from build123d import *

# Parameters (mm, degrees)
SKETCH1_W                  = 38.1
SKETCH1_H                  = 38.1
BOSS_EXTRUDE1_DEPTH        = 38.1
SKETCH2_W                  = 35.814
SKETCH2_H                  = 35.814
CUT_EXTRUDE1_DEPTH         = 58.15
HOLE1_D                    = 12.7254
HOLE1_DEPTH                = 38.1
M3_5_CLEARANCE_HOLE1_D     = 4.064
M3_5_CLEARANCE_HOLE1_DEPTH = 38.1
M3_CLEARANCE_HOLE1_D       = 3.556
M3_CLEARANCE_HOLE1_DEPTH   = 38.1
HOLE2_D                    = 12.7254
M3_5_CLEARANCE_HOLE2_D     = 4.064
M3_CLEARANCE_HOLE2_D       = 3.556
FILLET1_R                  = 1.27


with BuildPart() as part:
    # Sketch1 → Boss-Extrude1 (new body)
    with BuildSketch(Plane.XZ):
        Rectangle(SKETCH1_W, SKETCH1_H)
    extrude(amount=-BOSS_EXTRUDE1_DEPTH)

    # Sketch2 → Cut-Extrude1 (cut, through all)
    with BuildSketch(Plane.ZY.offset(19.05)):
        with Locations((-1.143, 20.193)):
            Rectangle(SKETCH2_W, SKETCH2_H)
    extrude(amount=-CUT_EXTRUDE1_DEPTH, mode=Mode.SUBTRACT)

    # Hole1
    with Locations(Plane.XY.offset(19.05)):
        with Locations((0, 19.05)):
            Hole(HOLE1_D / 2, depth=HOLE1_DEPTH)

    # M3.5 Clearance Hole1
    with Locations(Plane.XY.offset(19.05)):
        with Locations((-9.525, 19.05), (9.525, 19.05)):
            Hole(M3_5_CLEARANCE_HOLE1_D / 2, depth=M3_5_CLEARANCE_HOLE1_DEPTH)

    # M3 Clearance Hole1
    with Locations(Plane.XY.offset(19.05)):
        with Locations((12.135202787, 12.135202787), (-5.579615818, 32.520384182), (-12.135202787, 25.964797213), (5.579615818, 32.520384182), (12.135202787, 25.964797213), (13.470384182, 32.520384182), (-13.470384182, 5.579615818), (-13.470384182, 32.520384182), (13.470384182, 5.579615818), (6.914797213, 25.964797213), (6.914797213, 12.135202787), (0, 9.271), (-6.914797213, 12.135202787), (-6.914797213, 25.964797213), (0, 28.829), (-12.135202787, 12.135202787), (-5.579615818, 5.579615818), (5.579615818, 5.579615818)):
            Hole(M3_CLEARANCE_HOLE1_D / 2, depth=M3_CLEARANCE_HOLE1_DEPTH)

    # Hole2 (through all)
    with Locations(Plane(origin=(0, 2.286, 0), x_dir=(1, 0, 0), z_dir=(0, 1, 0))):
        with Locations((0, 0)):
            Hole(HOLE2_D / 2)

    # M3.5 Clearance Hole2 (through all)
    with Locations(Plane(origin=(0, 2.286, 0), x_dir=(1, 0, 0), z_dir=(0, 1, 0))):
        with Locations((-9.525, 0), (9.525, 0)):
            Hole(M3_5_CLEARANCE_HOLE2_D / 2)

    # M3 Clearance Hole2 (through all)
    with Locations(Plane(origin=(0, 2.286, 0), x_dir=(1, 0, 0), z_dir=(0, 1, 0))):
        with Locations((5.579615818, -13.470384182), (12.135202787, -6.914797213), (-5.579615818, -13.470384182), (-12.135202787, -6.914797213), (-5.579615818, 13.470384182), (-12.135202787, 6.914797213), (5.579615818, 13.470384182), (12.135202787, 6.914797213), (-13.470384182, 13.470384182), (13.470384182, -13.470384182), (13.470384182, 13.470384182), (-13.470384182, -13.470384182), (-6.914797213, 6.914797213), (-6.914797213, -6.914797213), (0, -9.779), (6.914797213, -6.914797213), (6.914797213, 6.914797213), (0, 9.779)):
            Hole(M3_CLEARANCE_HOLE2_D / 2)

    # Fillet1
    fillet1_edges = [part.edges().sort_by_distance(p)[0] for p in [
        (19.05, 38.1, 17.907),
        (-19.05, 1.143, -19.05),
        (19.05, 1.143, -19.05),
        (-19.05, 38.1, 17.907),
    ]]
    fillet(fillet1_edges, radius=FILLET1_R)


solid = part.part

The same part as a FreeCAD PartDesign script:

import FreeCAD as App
import Part
import Sketcher
Q = App.Units.Quantity


def edges_at(feature, points):
    """Names of the edges that pass closest to the given points."""
    edges = feature.Shape.Edges
    near = lambda p: min(range(len(edges)), key=lambda i: edges[i].distToShape(Part.Vertex(*p))[0])
    return sorted({f"Edge{near(p) + 1}" for p in points})

doc = App.newDocument("Part")
body = doc.addObject("PartDesign::Body", "Body")

sketch1 = body.newObject("Sketcher::SketchObject", "Sketch")
sketch1.AttachmentSupport = (doc.getObject("XZ_Plane"), [""])
sketch1.MapMode = "FlatFace"
sketch1.addGeometry(Part.LineSegment(App.Vector(-19.05, 19.05, 0), App.Vector(-19.05, -19.05, 0)), False)
sketch1.addGeometry(Part.LineSegment(App.Vector(-19.05, -19.05, 0), App.Vector(19.05, -19.05, 0)), False)
sketch1.addGeometry(Part.LineSegment(App.Vector(19.05, -19.05, 0), App.Vector(19.05, 19.05, 0)), False)
sketch1.addGeometry(Part.LineSegment(App.Vector(19.05, 19.05, 0), App.Vector(-19.05, 19.05, 0)), False)
sketch1.addConstraint(Sketcher.Constraint("Coincident", 0, 2, 1, 1))
sketch1.addConstraint(Sketcher.Constraint("Coincident", 1, 2, 2, 1))
sketch1.addConstraint(Sketcher.Constraint("Coincident", 2, 2, 3, 1))
sketch1.addConstraint(Sketcher.Constraint("Coincident", 3, 2, 0, 1))
sketch1.addConstraint(Sketcher.Constraint("Vertical", 0))
sketch1.addConstraint(Sketcher.Constraint("Horizontal", 1))
sketch1.addConstraint(Sketcher.Constraint("Vertical", 2))
sketch1.addConstraint(Sketcher.Constraint("Horizontal", 3))
sketch1.addConstraint(Sketcher.Constraint("Symmetric", 0, 2, 2, 2, -1, 1))
sketch1.addConstraint(Sketcher.Constraint("Equal", 3, 0))
sketch1.addConstraint(Sketcher.Constraint("DistanceX", 1, 1, 1, 2, Q("1.5 in")))
pad1 = body.newObject("PartDesign::Pad", "Pad")
pad1.Profile = sketch1
pad1.Length = Q("1.5 in")
pad1.Reversed = True

sketch2 = body.newObject("Sketcher::SketchObject", "Sketch001")
sketch2.AttachmentSupport = (doc.getObject("YZ_Plane"), [""])
sketch2.MapMode = "FlatFace"
sketch2.AttachmentOffset = App.Placement(App.Vector(0, 0, -0.75 * 25.4), App.Rotation())
sketch2.addGeometry(Part.LineSegment(App.Vector(38.1, -19.05, 0), App.Vector(2.286, -19.05, 0)), False)
sketch2.addGeometry(Part.LineSegment(App.Vector(2.286, -19.05, 0), App.Vector(2.286, 16.764, 0)), False)
sketch2.addGeometry(Part.LineSegment(App.Vector(2.286, 16.764, 0), App.Vector(38.1, 16.764, 0)), False)
sketch2.addGeometry(Part.LineSegment(App.Vector(38.1, 16.764, 0), App.Vector(38.1, -19.05, 0)), False)
sketch2.addConstraint(Sketcher.Constraint("Coincident", 0, 2, 1, 1))
sketch2.addConstraint(Sketcher.Constraint("Coincident", 1, 2, 2, 1))
sketch2.addConstraint(Sketcher.Constraint("Coincident", 2, 2, 3, 1))
sketch2.addConstraint(Sketcher.Constraint("Coincident", 3, 2, 0, 1))
sketch2.addConstraint(Sketcher.Constraint("Horizontal", 0))
sketch2.addConstraint(Sketcher.Constraint("Vertical", 1))
sketch2.addConstraint(Sketcher.Constraint("Horizontal", 2))
sketch2.addConstraint(Sketcher.Constraint("Vertical", 3))
sketch2.addConstraint(Sketcher.Constraint("Equal", 2, 1))
sketch2.addConstraint(Sketcher.Constraint("DistanceX", 0, 2, 0, 1, Q("1.41 in")))
sketch2.addConstraint(Sketcher.Constraint("DistanceX", -1, 1, 2, 2, Q("1.5 in")))
sketch2.addConstraint(Sketcher.Constraint("DistanceY", 0, 2, -1, 1, Q("0.75 in")))
pocket1 = body.newObject("PartDesign::Pocket", "Pocket")
pocket1.Profile = sketch2
pocket1.Type = "ThroughAll"
pocket1.Reversed = True

sketch3 = body.newObject("Sketcher::SketchObject", "Sketch002")
sketch3.AttachmentSupport = (doc.getObject("XY_Plane"), [""])
sketch3.MapMode = "FlatFace"
sketch3.AttachmentOffset = App.Placement(App.Vector(0, 0, 0.75 * 25.4), App.Rotation())
sketch3.addGeometry(Part.Circle(App.Vector(0, 19.05, 0), App.Vector(0, 0, 1), 6.3627), False)
sketch3.addConstraint(Sketcher.Constraint("PointOnObject", 0, 3, -2))
sketch3.addConstraint(Sketcher.Constraint("Diameter", 0, Q("0.501 in")))
sketch3.addConstraint(Sketcher.Constraint("DistanceY", -1, 1, 0, 3, Q("0.75 in")))
doc.recompute()
hole = body.newObject("PartDesign::Hole", "Hole")
hole.Profile = sketch3
hole.ThreadType = "None"
hole.Diameter = Q("0.501 in")
hole.DepthType = "Dimension"
hole.Depth = Q("1.5 in")
hole.DrillPoint = "Flat"

sketch4 = body.newObject("Sketcher::SketchObject", "Sketch003")
sketch4.AttachmentSupport = (doc.getObject("XY_Plane"), [""])
sketch4.MapMode = "FlatFace"
sketch4.AttachmentOffset = App.Placement(App.Vector(0, 0, 0.75 * 25.4), App.Rotation())
sketch4.addGeometry(Part.Circle(App.Vector(-9.525, 19.05, 0), App.Vector(0, 0, 1), 2.032), False)
sketch4.addGeometry(Part.Circle(App.Vector(9.525, 19.05, 0), App.Vector(0, 0, 1), 2.032), False)
sketch4.addConstraint(Sketcher.Constraint("Equal", 0, 1))
sketch4.addConstraint(Sketcher.Constraint("Symmetric", 0, 3, 1, 3, -2))
sketch4.addConstraint(Sketcher.Constraint("Diameter", 0, Q("0.16 in")))
sketch4.addConstraint(Sketcher.Constraint("DistanceY", -1, 1, 0, 3, Q("0.75 in")))
sketch4.addConstraint(Sketcher.Constraint("DistanceX", 0, 3, 1, 3, Q("0.75 in")))
doc.recompute()
hole2 = body.newObject("PartDesign::Hole", "Hole001")
hole2.Profile = sketch4
hole2.ThreadType = "None"
hole2.Diameter = Q("0.16 in")
hole2.DepthType = "Dimension"
hole2.Depth = Q("1.5 in")
hole2.DrillPoint = "Flat"

sketch5 = body.newObject("Sketcher::SketchObject", "Sketch004")
sketch5.AttachmentSupport = (doc.getObject("XY_Plane"), [""])
sketch5.MapMode = "FlatFace"
sketch5.AttachmentOffset = App.Placement(App.Vector(0, 0, 0.75 * 25.4), App.Rotation())
sketch5.addGeometry(Part.Circle(App.Vector(12.135203, 12.135203, 0), App.Vector(0, 0, 1), 1.778), False)
sketch5.addGeometry(Part.Circle(App.Vector(-5.579616, 32.520384, 0), App.Vector(0, 0, 1), 1.778), False)
sketch5.addGeometry(Part.Circle(App.Vector(-12.135203, 25.964797, 0), App.Vector(0, 0, 1), 1.778), False)
sketch5.addGeometry(Part.Circle(App.Vector(5.579616, 32.520384, 0), App.Vector(0, 0, 1), 1.778), False)
sketch5.addGeometry(Part.Circle(App.Vector(12.135203, 25.964797, 0), App.Vector(0, 0, 1), 1.778), False)
sketch5.addGeometry(Part.Circle(App.Vector(13.470384, 32.520384, 0), App.Vector(0, 0, 1), 1.778), False)
sketch5.addGeometry(Part.Circle(App.Vector(-13.470384, 5.579616, 0), App.Vector(0, 0, 1), 1.778), False)
sketch5.addGeometry(Part.Circle(App.Vector(-13.470384, 32.520384, 0), App.Vector(0, 0, 1), 1.778), False)
sketch5.addGeometry(Part.Circle(App.Vector(13.470384, 5.579616, 0), App.Vector(0, 0, 1), 1.778), False)
sketch5.addGeometry(Part.Circle(App.Vector(6.914797, 25.964797, 0), App.Vector(0, 0, 1), 1.778), False)
sketch5.addGeometry(Part.Circle(App.Vector(6.914797, 12.135203, 0), App.Vector(0, 0, 1), 1.778), False)
sketch5.addGeometry(Part.Circle(App.Vector(0, 9.271, 0), App.Vector(0, 0, 1), 1.778), False)
sketch5.addGeometry(Part.Circle(App.Vector(-6.914797, 12.135203, 0), App.Vector(0, 0, 1), 1.778), False)
sketch5.addGeometry(Part.Circle(App.Vector(-6.914797, 25.964797, 0), App.Vector(0, 0, 1), 1.778), False)
sketch5.addGeometry(Part.Circle(App.Vector(0, 28.829, 0), App.Vector(0, 0, 1), 1.778), False)
sketch5.addGeometry(Part.Circle(App.Vector(-12.135203, 12.135203, 0), App.Vector(0, 0, 1), 1.778), False)
sketch5.addGeometry(Part.Circle(App.Vector(-5.579616, 5.579616, 0), App.Vector(0, 0, 1), 1.778), False)
sketch5.addGeometry(Part.Circle(App.Vector(5.579616, 5.579616, 0), App.Vector(0, 0, 1), 1.778), False)
sketch5.addConstraint(Sketcher.Constraint("Equal", 0, 1))
sketch5.addConstraint(Sketcher.Constraint("Equal", 1, 2))
sketch5.addConstraint(Sketcher.Constraint("Equal", 2, 3))
sketch5.addConstraint(Sketcher.Constraint("Equal", 3, 4))
sketch5.addConstraint(Sketcher.Constraint("Equal", 4, 5))
sketch5.addConstraint(Sketcher.Constraint("Equal", 5, 6))
sketch5.addConstraint(Sketcher.Constraint("Equal", 6, 7))
sketch5.addConstraint(Sketcher.Constraint("Equal", 7, 8))
sketch5.addConstraint(Sketcher.Constraint("Equal", 8, 9))
sketch5.addConstraint(Sketcher.Constraint("Equal", 9, 10))
sketch5.addConstraint(Sketcher.Constraint("Equal", 10, 11))
sketch5.addConstraint(Sketcher.Constraint("Equal", 11, 12))
sketch5.addConstraint(Sketcher.Constraint("Equal", 12, 13))
sketch5.addConstraint(Sketcher.Constraint("Equal", 13, 14))
sketch5.addConstraint(Sketcher.Constraint("Equal", 14, 15))
sketch5.addConstraint(Sketcher.Constraint("Equal", 15, 16))
sketch5.addConstraint(Sketcher.Constraint("Equal", 16, 17))
sketch5.addConstraint(Sketcher.Constraint("Symmetric", 1, 3, 3, 3, -2))
sketch5.addConstraint(Sketcher.Constraint("Symmetric", 2, 3, 4, 3, -2))
sketch5.addConstraint(Sketcher.Constraint("Symmetric", 5, 3, 7, 3, -2))
sketch5.addConstraint(Sketcher.Constraint("Symmetric", 6, 3, 8, 3, -2))
sketch5.addConstraint(Sketcher.Constraint("Symmetric", 10, 3, 12, 3, -2))
sketch5.addConstraint(Sketcher.Constraint("Symmetric", 9, 3, 13, 3, -2))
sketch5.addConstraint(Sketcher.Constraint("Symmetric", 0, 3, 15, 3, -2))
sketch5.addConstraint(Sketcher.Constraint("Symmetric", 16, 3, 17, 3, -2))
sketch5.addConstraint(Sketcher.Constraint("PointOnObject", 11, 3, -2))
sketch5.addConstraint(Sketcher.Constraint("PointOnObject", 14, 3, -2))
sketch5.addConstraint(Sketcher.Constraint("Horizontal", 3, 3, 5, 3))
sketch5.addConstraint(Sketcher.Constraint("Horizontal", 4, 3, 9, 3))
sketch5.addConstraint(Sketcher.Constraint("Horizontal", 0, 3, 10, 3))
sketch5.addConstraint(Sketcher.Constraint("Horizontal", 8, 3, 16, 3))
sketch5.addConstraint(Sketcher.Constraint("Vertical", 0, 3, 4, 3))
sketch5.addConstraint(Sketcher.Constraint("Vertical", 6, 3, 7, 3))
sketch5.addConstraint(Sketcher.Constraint("Vertical", 9, 3, 10, 3))
sketch5.addConstraint(Sketcher.Constraint("Vertical", 1, 3, 16, 3))
sketch5.addConstraint(Sketcher.Constraint("Diameter", 0, Q("0.14 in")))
sketch5.addConstraint(Sketcher.Constraint("DistanceX", 1, 3, 5, 3, Q("0.75 in")))
sketch5.addConstraint(Sketcher.Constraint("DistanceX", 12, 3, 0, 3, Q("0.75 in")))
sketch5.addConstraint(Sketcher.Constraint("DistanceY", -1, 1, 11, 3, Q("0.365 in")))
sketch5.addConstraint(Sketcher.Constraint("DistanceY", -1, 1, 14, 3, Q("1.135 in")))
sketch5.addConstraint(Sketcher.Constraint("DistanceX", 1, 3, 0, 3, Q("17.714819 mm")))
sketch5.addConstraint(Sketcher.Constraint("DistanceY", 0, 3, 1, 3, Q("20.385181 mm")))
sketch5.addConstraint(Sketcher.Constraint("DistanceX", 1, 3, 3, 3, Q("11.159232 mm")))
sketch5.addConstraint(Sketcher.Constraint("DistanceY", 6, 3, 2, 3, Q("20.385181 mm")))
sketch5.addConstraint(Sketcher.Constraint("DistanceY", 6, 3, 1, 3, Q("26.940768 mm")))
sketch5.addConstraint(Sketcher.Constraint("DistanceY", -1, 1, 0, 3, Q("12.135203 mm")))
doc.recompute()
hole3 = body.newObject("PartDesign::Hole", "Hole002")
hole3.Profile = sketch5
hole3.ThreadType = "None"
hole3.Diameter = Q("0.14 in")
hole3.DepthType = "Dimension"
hole3.Depth = Q("1.5 in")
hole3.DrillPoint = "Flat"

sketch6 = body.newObject("Sketcher::SketchObject", "Sketch005")
sketch6.AttachmentSupport = (doc.getObject("XZ_Plane"), [""])
sketch6.MapMode = "FlatFace"
sketch6.AttachmentOffset = App.Placement(App.Vector(0, 0, -0.09 * 25.4), App.Rotation())
sketch6.addGeometry(Part.Circle(App.Vector(0, 0, 0), App.Vector(0, 0, 1), 6.3627), False)
sketch6.addConstraint(Sketcher.Constraint("Coincident", 0, 3, -1, 1))
sketch6.addConstraint(Sketcher.Constraint("Diameter", 0, Q("0.501 in")))
doc.recompute()
hole4 = body.newObject("PartDesign::Hole", "Hole003")
hole4.Profile = sketch6
hole4.ThreadType = "None"
hole4.Diameter = Q("0.501 in")
hole4.DepthType = "ThroughAll"
hole4.Reversed = True

sketch7 = body.newObject("Sketcher::SketchObject", "Sketch006")
sketch7.AttachmentSupport = (doc.getObject("XZ_Plane"), [""])
sketch7.MapMode = "FlatFace"
sketch7.AttachmentOffset = App.Placement(App.Vector(0, 0, -0.09 * 25.4), App.Rotation())
sketch7.addGeometry(Part.Circle(App.Vector(-9.525, 0, 0), App.Vector(0, 0, 1), 2.032), False)
sketch7.addGeometry(Part.Circle(App.Vector(9.525, 0, 0), App.Vector(0, 0, 1), 2.032), False)
sketch7.addConstraint(Sketcher.Constraint("Equal", 0, 1))
sketch7.addConstraint(Sketcher.Constraint("Symmetric", 0, 3, 1, 3, -1, 1))
sketch7.addConstraint(Sketcher.Constraint("PointOnObject", 0, 3, -1))
sketch7.addConstraint(Sketcher.Constraint("Diameter", 0, Q("0.16 in")))
sketch7.addConstraint(Sketcher.Constraint("DistanceX", 0, 3, 1, 3, Q("0.75 in")))
doc.recompute()
hole5 = body.newObject("PartDesign::Hole", "Hole004")
hole5.Profile = sketch7
hole5.ThreadType = "None"
hole5.Diameter = Q("0.16 in")
hole5.DepthType = "ThroughAll"
hole5.Reversed = True

sketch8 = body.newObject("Sketcher::SketchObject", "Sketch007")
sketch8.AttachmentSupport = (doc.getObject("XZ_Plane"), [""])
sketch8.MapMode = "FlatFace"
sketch8.AttachmentOffset = App.Placement(App.Vector(0, 0, -0.09 * 25.4), App.Rotation())
sketch8.addGeometry(Part.Circle(App.Vector(5.579616, 13.470384, 0), App.Vector(0, 0, 1), 1.778), False)
sketch8.addGeometry(Part.Circle(App.Vector(12.135203, 6.914797, 0), App.Vector(0, 0, 1), 1.778), False)
sketch8.addGeometry(Part.Circle(App.Vector(-5.579616, 13.470384, 0), App.Vector(0, 0, 1), 1.778), False)
sketch8.addGeometry(Part.Circle(App.Vector(-12.135203, 6.914797, 0), App.Vector(0, 0, 1), 1.778), False)
sketch8.addGeometry(Part.Circle(App.Vector(-5.579616, -13.470384, 0), App.Vector(0, 0, 1), 1.778), False)
sketch8.addGeometry(Part.Circle(App.Vector(-12.135203, -6.914797, 0), App.Vector(0, 0, 1), 1.778), False)
sketch8.addGeometry(Part.Circle(App.Vector(5.579616, -13.470384, 0), App.Vector(0, 0, 1), 1.778), False)
sketch8.addGeometry(Part.Circle(App.Vector(12.135203, -6.914797, 0), App.Vector(0, 0, 1), 1.778), False)
sketch8.addGeometry(Part.Circle(App.Vector(-13.470384, -13.470384, 0), App.Vector(0, 0, 1), 1.778), False)
sketch8.addGeometry(Part.Circle(App.Vector(13.470384, 13.470384, 0), App.Vector(0, 0, 1), 1.778), False)
sketch8.addGeometry(Part.Circle(App.Vector(13.470384, -13.470384, 0), App.Vector(0, 0, 1), 1.778), False)
sketch8.addGeometry(Part.Circle(App.Vector(-13.470384, 13.470384, 0), App.Vector(0, 0, 1), 1.778), False)
sketch8.addGeometry(Part.Circle(App.Vector(-6.914797, -6.914797, 0), App.Vector(0, 0, 1), 1.778), False)
sketch8.addGeometry(Part.Circle(App.Vector(-6.914797, 6.914797, 0), App.Vector(0, 0, 1), 1.778), False)
sketch8.addGeometry(Part.Circle(App.Vector(0, 9.779, 0), App.Vector(0, 0, 1), 1.778), False)
sketch8.addGeometry(Part.Circle(App.Vector(6.914797, 6.914797, 0), App.Vector(0, 0, 1), 1.778), False)
sketch8.addGeometry(Part.Circle(App.Vector(6.914797, -6.914797, 0), App.Vector(0, 0, 1), 1.778), False)
sketch8.addGeometry(Part.Circle(App.Vector(0, -9.779, 0), App.Vector(0, 0, 1), 1.778), False)
sketch8.addConstraint(Sketcher.Constraint("Equal", 0, 1))
sketch8.addConstraint(Sketcher.Constraint("Equal", 1, 2))
sketch8.addConstraint(Sketcher.Constraint("Equal", 2, 3))
sketch8.addConstraint(Sketcher.Constraint("Equal", 3, 4))
sketch8.addConstraint(Sketcher.Constraint("Equal", 4, 5))
sketch8.addConstraint(Sketcher.Constraint("Equal", 5, 6))
sketch8.addConstraint(Sketcher.Constraint("Equal", 6, 7))
sketch8.addConstraint(Sketcher.Constraint("Equal", 7, 8))
sketch8.addConstraint(Sketcher.Constraint("Equal", 8, 9))
sketch8.addConstraint(Sketcher.Constraint("Equal", 9, 10))
sketch8.addConstraint(Sketcher.Constraint("Equal", 10, 11))
sketch8.addConstraint(Sketcher.Constraint("Equal", 11, 12))
sketch8.addConstraint(Sketcher.Constraint("Equal", 12, 13))
sketch8.addConstraint(Sketcher.Constraint("Equal", 13, 14))
sketch8.addConstraint(Sketcher.Constraint("Equal", 14, 15))
sketch8.addConstraint(Sketcher.Constraint("Equal", 15, 16))
sketch8.addConstraint(Sketcher.Constraint("Equal", 16, 17))
sketch8.addConstraint(Sketcher.Constraint("Symmetric", 0, 3, 4, 3, -1, 1))
sketch8.addConstraint(Sketcher.Constraint("Symmetric", 1, 3, 5, 3, -1, 1))
sketch8.addConstraint(Sketcher.Constraint("Symmetric", 2, 3, 6, 3, -1, 1))
sketch8.addConstraint(Sketcher.Constraint("Symmetric", 3, 3, 7, 3, -1, 1))
sketch8.addConstraint(Sketcher.Constraint("Symmetric", 8, 3, 9, 3, -1, 1))
sketch8.addConstraint(Sketcher.Constraint("Symmetric", 10, 3, 11, 3, -1, 1))
sketch8.addConstraint(Sketcher.Constraint("Symmetric", 12, 3, 15, 3, -1, 1))
sketch8.addConstraint(Sketcher.Constraint("Symmetric", 13, 3, 16, 3, -1, 1))
sketch8.addConstraint(Sketcher.Constraint("Symmetric", 14, 3, 17, 3, -1, 1))
sketch8.addConstraint(Sketcher.Constraint("Symmetric", 0, 3, 2, 3, -2))
sketch8.addConstraint(Sketcher.Constraint("Symmetric", 1, 3, 3, 3, -2))
sketch8.addConstraint(Sketcher.Constraint("Symmetric", 8, 3, 10, 3, -2))
sketch8.addConstraint(Sketcher.Constraint("Symmetric", 13, 3, 15, 3, -2))
sketch8.addConstraint(Sketcher.Constraint("PointOnObject", 14, 3, -2))
sketch8.addConstraint(Sketcher.Constraint("Horizontal", 6, 3, 8, 3))
sketch8.addConstraint(Sketcher.Constraint("Horizontal", 7, 3, 12, 3))
sketch8.addConstraint(Sketcher.Constraint("Diameter", 0, Q("0.14 in")))
sketch8.addConstraint(Sketcher.Constraint("DistanceX", 8, 3, 6, 3, Q("0.75 in")))
sketch8.addConstraint(Sketcher.Constraint("DistanceY", -1, 1, 14, 3, Q("0.385 in")))
sketch8.addConstraint(Sketcher.Constraint("DistanceX", 2, 3, 0, 3, Q("11.159232 mm")))
sketch8.addConstraint(Sketcher.Constraint("DistanceX", 2, 3, 1, 3, Q("17.714819 mm")))
sketch8.addConstraint(Sketcher.Constraint("DistanceY", 4, 3, 3, 3, Q("20.385181 mm")))
sketch8.addConstraint(Sketcher.Constraint("DistanceY", 4, 3, 2, 3, Q("26.940768 mm")))
sketch8.addConstraint(Sketcher.Constraint("DistanceX", 12, 3, 4, 3, Q("1.335181 mm")))
doc.recompute()
hole6 = body.newObject("PartDesign::Hole", "Hole005")
hole6.Profile = sketch8
hole6.ThreadType = "None"
hole6.Diameter = Q("0.14 in")
hole6.DepthType = "ThroughAll"
hole6.Reversed = True
doc.recompute()

fillet = body.newObject("PartDesign::Fillet", "Fillet")
fillet.Base = (hole6, edges_at(hole6, [
    (19.05, 38.1, 17.907),
    (-19.05, 1.143, -19.05),
    (19.05, 1.143, -19.05),
    (-19.05, 38.1, 17.907),
]))
fillet.Radius = Q("0.05 in")

doc.recompute()
